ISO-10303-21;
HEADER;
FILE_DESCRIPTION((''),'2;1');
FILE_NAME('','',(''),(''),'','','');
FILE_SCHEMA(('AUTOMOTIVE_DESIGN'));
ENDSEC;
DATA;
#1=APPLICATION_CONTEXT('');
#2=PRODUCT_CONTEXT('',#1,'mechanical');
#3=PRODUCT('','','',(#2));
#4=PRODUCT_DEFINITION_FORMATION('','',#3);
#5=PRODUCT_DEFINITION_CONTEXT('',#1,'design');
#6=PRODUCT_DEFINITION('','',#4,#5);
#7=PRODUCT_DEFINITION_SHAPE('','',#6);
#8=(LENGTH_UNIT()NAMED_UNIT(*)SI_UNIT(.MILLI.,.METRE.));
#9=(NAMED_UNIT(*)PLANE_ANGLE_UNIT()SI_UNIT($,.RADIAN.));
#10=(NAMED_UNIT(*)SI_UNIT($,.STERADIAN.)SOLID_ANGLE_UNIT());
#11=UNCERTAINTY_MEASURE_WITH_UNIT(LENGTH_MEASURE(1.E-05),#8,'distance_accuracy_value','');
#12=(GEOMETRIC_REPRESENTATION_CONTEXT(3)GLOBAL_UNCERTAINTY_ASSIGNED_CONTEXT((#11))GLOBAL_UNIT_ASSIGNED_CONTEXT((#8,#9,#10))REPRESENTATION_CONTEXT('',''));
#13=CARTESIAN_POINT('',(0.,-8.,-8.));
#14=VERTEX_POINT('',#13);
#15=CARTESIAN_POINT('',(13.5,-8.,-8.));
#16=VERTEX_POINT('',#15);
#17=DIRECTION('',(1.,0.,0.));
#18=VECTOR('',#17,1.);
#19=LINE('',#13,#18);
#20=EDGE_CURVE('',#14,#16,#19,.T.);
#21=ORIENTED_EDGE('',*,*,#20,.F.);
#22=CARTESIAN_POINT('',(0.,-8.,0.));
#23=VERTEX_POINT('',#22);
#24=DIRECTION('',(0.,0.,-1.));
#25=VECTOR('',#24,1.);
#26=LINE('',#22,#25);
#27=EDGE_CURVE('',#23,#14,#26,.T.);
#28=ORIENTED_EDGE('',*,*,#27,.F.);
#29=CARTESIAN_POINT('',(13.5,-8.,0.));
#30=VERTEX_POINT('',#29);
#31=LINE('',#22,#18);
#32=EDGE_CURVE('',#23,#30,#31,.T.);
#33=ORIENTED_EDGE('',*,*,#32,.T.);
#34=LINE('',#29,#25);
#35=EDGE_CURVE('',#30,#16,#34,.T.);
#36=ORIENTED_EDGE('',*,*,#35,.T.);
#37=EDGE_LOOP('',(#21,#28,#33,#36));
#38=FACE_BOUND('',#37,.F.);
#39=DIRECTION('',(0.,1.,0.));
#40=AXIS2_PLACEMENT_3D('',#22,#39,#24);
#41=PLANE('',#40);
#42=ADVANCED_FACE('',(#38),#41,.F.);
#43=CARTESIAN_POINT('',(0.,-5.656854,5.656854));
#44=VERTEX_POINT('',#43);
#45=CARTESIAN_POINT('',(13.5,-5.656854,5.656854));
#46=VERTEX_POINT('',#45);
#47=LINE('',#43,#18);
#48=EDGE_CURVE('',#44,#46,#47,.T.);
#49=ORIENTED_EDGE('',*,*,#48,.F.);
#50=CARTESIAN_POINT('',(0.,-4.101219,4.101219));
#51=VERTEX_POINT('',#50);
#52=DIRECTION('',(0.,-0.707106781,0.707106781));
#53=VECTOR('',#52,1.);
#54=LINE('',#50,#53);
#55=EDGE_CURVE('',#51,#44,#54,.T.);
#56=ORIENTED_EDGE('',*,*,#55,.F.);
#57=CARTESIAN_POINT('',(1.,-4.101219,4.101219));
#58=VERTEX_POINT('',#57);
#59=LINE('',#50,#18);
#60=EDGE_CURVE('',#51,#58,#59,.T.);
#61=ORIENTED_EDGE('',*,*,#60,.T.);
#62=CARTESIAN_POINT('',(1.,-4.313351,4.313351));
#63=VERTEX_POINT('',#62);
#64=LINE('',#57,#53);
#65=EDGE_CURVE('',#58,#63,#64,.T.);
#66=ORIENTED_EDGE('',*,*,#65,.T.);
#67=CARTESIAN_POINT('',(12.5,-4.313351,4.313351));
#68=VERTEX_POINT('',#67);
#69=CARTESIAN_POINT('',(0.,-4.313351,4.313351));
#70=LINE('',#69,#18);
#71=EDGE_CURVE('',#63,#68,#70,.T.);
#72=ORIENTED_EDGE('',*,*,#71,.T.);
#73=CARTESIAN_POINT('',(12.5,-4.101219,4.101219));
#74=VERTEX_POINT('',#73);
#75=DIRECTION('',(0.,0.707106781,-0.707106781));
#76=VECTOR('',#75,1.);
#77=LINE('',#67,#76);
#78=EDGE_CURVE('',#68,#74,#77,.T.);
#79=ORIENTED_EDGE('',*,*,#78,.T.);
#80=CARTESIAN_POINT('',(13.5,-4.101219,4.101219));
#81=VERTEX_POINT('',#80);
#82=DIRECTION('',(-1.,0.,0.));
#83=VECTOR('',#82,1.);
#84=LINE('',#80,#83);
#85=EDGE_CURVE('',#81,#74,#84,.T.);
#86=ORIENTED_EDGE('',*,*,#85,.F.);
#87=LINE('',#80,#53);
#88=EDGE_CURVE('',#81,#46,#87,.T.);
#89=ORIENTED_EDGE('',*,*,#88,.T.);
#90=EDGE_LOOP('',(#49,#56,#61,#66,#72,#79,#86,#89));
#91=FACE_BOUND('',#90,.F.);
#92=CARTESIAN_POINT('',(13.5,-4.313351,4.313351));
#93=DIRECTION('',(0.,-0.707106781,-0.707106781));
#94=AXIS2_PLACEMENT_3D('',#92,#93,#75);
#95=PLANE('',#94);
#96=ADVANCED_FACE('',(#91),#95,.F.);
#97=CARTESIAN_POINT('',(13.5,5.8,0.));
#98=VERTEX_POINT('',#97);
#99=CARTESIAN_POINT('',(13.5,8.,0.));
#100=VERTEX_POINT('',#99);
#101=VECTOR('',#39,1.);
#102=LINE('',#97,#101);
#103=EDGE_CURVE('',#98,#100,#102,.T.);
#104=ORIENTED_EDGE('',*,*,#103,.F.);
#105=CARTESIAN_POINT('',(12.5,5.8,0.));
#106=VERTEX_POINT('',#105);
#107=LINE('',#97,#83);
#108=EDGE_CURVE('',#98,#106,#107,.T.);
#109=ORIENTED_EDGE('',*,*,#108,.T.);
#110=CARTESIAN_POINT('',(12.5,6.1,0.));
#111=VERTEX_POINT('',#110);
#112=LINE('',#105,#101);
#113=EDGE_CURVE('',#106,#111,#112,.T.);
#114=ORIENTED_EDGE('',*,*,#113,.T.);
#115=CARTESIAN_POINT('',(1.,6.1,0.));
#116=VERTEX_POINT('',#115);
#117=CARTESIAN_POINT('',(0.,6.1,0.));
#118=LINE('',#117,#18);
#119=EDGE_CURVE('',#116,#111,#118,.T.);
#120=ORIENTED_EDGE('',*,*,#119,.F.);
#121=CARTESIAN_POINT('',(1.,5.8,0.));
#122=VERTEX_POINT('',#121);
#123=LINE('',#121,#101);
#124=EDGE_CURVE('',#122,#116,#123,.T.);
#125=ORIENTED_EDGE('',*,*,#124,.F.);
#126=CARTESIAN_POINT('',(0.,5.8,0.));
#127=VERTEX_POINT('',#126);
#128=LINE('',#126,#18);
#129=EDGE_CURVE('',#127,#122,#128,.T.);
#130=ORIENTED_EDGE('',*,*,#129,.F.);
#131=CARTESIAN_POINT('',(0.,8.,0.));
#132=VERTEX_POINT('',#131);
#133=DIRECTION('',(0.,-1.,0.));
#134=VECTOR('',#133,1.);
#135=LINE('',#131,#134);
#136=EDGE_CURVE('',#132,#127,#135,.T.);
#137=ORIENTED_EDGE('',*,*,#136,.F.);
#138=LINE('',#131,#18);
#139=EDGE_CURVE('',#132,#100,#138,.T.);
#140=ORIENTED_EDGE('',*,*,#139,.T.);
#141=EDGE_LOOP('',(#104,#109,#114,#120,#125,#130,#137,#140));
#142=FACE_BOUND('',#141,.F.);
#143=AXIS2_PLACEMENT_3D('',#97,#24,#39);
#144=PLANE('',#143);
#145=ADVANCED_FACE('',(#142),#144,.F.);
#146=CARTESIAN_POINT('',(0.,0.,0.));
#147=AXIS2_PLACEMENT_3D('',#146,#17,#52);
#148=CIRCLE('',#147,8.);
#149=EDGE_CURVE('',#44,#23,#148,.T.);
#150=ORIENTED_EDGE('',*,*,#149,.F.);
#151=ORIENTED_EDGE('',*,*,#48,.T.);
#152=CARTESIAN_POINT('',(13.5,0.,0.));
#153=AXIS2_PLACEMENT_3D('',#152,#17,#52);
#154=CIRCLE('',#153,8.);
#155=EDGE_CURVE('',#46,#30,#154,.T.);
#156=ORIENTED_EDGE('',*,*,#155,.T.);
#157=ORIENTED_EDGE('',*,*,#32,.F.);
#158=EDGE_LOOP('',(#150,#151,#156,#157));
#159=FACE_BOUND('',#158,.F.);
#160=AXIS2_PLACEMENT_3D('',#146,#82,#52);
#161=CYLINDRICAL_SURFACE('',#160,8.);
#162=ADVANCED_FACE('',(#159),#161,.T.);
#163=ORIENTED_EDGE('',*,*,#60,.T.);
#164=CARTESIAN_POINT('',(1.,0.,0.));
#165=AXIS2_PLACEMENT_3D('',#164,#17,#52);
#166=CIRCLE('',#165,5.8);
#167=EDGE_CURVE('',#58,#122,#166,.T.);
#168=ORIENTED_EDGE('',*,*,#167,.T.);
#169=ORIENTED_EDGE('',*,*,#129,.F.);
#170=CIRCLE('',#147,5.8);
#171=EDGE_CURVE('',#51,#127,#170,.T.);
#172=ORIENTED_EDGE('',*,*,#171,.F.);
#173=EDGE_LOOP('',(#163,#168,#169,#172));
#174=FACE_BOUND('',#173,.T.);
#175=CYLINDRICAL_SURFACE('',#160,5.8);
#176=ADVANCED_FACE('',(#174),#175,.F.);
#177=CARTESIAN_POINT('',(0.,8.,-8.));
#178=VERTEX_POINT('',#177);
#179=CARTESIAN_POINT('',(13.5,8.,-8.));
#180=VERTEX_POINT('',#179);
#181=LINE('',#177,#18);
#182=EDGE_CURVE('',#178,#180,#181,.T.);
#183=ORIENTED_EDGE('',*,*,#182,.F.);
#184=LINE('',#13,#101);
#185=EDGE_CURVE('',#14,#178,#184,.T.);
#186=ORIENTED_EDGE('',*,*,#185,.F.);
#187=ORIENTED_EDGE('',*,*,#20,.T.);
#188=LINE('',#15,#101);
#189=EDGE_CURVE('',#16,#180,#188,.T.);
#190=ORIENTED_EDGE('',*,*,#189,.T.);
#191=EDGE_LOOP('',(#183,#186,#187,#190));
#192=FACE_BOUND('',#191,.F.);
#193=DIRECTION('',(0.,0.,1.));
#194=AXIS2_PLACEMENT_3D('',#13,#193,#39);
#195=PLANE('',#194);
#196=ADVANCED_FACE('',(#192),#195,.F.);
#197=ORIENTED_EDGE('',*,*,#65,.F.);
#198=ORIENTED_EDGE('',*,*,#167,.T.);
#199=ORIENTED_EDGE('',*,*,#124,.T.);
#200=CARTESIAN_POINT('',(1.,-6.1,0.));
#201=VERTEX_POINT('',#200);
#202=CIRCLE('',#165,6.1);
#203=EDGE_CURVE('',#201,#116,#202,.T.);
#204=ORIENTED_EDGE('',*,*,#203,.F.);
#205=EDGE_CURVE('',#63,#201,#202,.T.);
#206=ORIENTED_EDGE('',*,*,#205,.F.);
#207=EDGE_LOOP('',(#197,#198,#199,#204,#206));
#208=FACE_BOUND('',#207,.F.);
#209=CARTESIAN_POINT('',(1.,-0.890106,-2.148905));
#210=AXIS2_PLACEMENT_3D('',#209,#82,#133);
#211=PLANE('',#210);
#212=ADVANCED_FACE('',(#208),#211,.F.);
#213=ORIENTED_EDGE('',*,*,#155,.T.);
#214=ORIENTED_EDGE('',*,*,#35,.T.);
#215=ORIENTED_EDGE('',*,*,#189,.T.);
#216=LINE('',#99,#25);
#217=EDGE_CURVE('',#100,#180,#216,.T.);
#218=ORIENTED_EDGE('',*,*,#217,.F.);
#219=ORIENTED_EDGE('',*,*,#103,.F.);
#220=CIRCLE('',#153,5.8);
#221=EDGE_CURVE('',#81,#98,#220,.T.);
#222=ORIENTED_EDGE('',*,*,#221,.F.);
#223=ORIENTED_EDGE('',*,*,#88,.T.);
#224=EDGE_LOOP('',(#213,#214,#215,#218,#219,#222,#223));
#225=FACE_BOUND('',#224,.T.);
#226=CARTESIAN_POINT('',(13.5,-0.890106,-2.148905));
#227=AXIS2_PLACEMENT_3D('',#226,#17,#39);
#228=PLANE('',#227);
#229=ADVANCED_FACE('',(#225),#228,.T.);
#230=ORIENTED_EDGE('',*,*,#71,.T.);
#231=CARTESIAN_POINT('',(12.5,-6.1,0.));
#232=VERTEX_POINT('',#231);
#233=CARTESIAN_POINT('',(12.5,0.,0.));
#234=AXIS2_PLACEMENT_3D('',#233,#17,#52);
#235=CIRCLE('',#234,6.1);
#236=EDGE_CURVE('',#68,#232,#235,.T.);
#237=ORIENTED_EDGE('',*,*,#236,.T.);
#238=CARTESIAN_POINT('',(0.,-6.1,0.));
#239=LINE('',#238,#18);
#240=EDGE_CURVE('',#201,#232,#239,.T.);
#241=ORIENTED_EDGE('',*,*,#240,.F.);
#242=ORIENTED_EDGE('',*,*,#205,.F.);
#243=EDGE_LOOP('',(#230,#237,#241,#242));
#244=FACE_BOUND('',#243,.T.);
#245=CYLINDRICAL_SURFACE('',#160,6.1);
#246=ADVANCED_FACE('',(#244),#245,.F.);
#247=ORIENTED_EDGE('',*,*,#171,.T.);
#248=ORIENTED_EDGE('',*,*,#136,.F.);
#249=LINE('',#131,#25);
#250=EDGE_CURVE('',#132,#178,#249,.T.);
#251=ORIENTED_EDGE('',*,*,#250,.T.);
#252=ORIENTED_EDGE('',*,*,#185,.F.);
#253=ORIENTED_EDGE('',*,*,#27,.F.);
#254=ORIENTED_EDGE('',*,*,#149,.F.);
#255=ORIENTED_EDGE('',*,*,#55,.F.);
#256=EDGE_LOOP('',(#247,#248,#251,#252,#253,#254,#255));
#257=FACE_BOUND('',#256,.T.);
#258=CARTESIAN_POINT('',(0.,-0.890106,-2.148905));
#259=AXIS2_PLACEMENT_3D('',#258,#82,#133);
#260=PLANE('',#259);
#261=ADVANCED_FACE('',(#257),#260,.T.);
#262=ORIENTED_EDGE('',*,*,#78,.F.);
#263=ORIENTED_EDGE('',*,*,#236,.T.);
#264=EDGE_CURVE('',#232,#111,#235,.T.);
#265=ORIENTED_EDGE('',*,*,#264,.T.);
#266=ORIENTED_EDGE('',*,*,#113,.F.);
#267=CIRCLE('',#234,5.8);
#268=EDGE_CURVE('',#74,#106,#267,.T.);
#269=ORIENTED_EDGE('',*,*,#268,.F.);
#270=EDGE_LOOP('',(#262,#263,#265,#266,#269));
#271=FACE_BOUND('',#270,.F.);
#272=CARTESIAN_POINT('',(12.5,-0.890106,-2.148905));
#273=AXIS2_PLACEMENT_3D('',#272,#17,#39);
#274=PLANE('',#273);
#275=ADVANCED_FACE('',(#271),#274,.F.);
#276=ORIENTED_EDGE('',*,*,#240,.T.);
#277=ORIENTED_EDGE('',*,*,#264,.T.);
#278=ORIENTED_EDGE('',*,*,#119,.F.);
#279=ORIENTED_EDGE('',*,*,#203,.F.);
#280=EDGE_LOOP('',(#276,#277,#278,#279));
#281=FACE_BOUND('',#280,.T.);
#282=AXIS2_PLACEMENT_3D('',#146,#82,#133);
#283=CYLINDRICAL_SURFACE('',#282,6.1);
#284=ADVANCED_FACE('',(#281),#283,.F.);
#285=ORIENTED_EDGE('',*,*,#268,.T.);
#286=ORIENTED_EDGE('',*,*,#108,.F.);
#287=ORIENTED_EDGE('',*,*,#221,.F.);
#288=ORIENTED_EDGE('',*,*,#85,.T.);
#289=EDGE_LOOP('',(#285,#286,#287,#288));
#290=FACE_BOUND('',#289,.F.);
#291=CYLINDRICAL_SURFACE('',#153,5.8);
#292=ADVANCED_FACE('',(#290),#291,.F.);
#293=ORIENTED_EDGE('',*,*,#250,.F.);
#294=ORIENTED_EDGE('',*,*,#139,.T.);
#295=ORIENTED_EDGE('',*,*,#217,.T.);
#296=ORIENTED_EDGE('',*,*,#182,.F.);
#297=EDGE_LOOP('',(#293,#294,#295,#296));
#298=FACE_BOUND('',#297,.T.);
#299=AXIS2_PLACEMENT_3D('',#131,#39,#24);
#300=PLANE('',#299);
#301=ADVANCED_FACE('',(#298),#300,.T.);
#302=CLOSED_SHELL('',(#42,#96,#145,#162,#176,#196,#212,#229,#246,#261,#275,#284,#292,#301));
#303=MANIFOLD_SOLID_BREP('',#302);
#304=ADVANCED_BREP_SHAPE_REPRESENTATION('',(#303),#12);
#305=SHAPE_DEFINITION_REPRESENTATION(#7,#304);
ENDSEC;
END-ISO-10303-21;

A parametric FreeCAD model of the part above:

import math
import FreeCAD as App
import Part
import Sketcher
from FreeCAD import Vector
Q = App.Units.Quantity

doc = App.newDocument("Part")
body = doc.addObject("PartDesign::Body", "Body")

# Sketch on YZ plane
sketch1 = body.newObject("Sketcher::SketchObject", "Sketch")
sketch1.AttachmentSupport = (doc.getObject("YZ_Plane"), [""])
sketch1.MapMode = "FlatFace"
sketch1.addGeometry([
    Part.LineSegment(Vector(-8, 0, 0), Vector(-8, -8, 0)),  # 0
    Part.LineSegment(Vector(-8, -8, 0), Vector(8, -8, 0)),  # 1
    Part.LineSegment(Vector(8, -8, 0), Vector(8, 0, 0)),  # 2
    Part.LineSegment(Vector(8, 0, 0), Vector(6.1, 0, 0)),  # 3
    Part.ArcOfCircle(Part.Circle(Vector(0, 0, 0), Vector(0, 0, 1), 6.1), math.radians(180), math.radians(360)),  # 4
    Part.ArcOfCircle(Part.Circle(Vector(0, 0, 0), Vector(0, 0, 1), 6.1), math.radians(135), math.radians(180)),  # 5
    Part.LineSegment(Vector(-4.3, 4.3, 0), Vector(-5.7, 5.7, 0)),  # 6
    Part.ArcOfCircle(Part.Circle(Vector(0, 0, 0), Vector(0, 0, 1), 8), math.radians(135), math.radians(180)),  # 7
], False)
sketch1.addConstraint([
    Sketcher.Constraint("Coincident", 0, 2, 1, 1),
    Sketcher.Constraint("Coincident", 1, 2, 2, 1),
    Sketcher.Constraint("Coincident", 2, 2, 3, 1),
    Sketcher.Constraint("Coincident", 3, 2, 4, 2),
    Sketcher.Constraint("Tangent", 4, 1, 5, 2),
    Sketcher.Constraint("Coincident", 5, 1, 6, 1),
    Sketcher.Constraint("Coincident", 6, 2, 7, 1),
    Sketcher.Constraint("Tangent", 7, 2, 0, 1),
    Sketcher.Constraint("Vertical", 0),
    Sketcher.Constraint("Horizontal", 1),
    Sketcher.Constraint("Vertical", 2),
    Sketcher.Constraint("Horizontal", 3),
    Sketcher.Constraint("Coincident", 4, 3, -1, 1),
    Sketcher.Constraint("Coincident", 7, 3, -1, 1),
    Sketcher.Constraint("Equal", 4, 5),
    Sketcher.Constraint("Symmetric", 2, 2, 7, 2, -1, 1),
    Sketcher.Constraint("PointOnObject", 4, 1, -1),
    Sketcher.Constraint("Radius", 7, Q("8 mm")),
    Sketcher.Constraint("Radius", 4, Q("6.1 mm")),
    Sketcher.Constraint("DistanceY", 0, 2, 0, 1, Q("8 mm")),
    Sketcher.Constraint("Angle", 6, Q("135 deg")),
    Sketcher.Constraint("DistanceX", 5, 1, -1, 1, Q("4.313351 mm")),
])
pad1 = body.newObject("PartDesign::Pad", "Pad")
pad1.Profile = sketch1
pad1.Length = 13.5

# Sketch on YZ plane
sketch2 = body.newObject("Sketcher::SketchObject", "Sketch001")
sketch2.AttachmentSupport = (doc.getObject("YZ_Plane"), [""])
sketch2.MapMode = "FlatFace"
sketch2.addGeometry([
    Part.ArcOfCircle(Part.Circle(Vector(0, 0, 0), Vector(0, 0, 1), 5.8), math.radians(135), math.radians(360)),
    Part.LineSegment(Vector(-4.1, 4.1, 0), Vector(-4.31, 4.31, 0)),
    Part.ArcOfCircle(Part.Circle(Vector(0, 0, 0), Vector(0, 0, 1), 6.1), math.radians(135), math.radians(360)),
    Part.LineSegment(Vector(6.1, 0, 0), Vector(5.8, 0, 0)),
], False)
sketch2.addConstraint([
    Sketcher.Constraint("Coincident", 0, 1, 1, 1),
    Sketcher.Constraint("Coincident", 1, 2, 2, 1),
    Sketcher.Constraint("Coincident", 2, 2, 3, 1),
    Sketcher.Constraint("Coincident", 3, 2, 0, 2),
    Sketcher.Constraint("Horizontal", 3),
    Sketcher.Constraint("Coincident", 0, 3, -1, 1),
    Sketcher.Constraint("Coincident", 2, 3, -1, 1),
    Sketcher.Constraint("PointOnObject", 2, 2, -1),
    Sketcher.Constraint("Radius", 0, Q("5.8 mm")),
    Sketcher.Constraint("Radius", 2, Q("6.1 mm")),
    Sketcher.Constraint("Angle", 1, Q("135 deg")),
    Sketcher.Constraint("DistanceX", 0, 1, -1, 1, Q("4.101219 mm")),
])
pad2 = body.newObject("PartDesign::Pad", "Pad001")
pad2.Profile = sketch2
pad2.Length = 1

# Sketch on YZ plane
sketch3 = body.newObject("Sketcher::SketchObject", "Sketch002")
sketch3.AttachmentSupport = (doc.getObject("YZ_Plane"), [""])
sketch3.MapMode = "FlatFace"
sketch3.AttachmentOffset = App.Placement(Vector(0, 0, 13.5), App.Rotation())
sketch3.addGeometry([
    Part.ArcOfCircle(Part.Circle(Vector(0, 0, 0), Vector(0, 0, 1), 6.1), math.radians(135), math.radians(360)),
    Part.LineSegment(Vector(6.1, 0, 0), Vector(5.8, 0, 0)),
    Part.ArcOfCircle(Part.Circle(Vector(0, 0, 0), Vector(0, 0, 1), 5.8), math.radians(135), math.radians(360)),
    Part.LineSegment(Vector(-4.1, 4.1, 0), Vector(-4.31, 4.31, 0)),
], False)
sketch3.addConstraint([
    Sketcher.Constraint("Coincident", 0, 2, 1, 1),
    Sketcher.Constraint("Coincident", 1, 2, 2, 2),
    Sketcher.Constraint("Coincident", 2, 1, 3, 1),
    Sketcher.Constraint("Coincident", 3, 2, 0, 1),
    Sketcher.Constraint("Horizontal", 1),
    Sketcher.Constraint("Coincident", 0, 3, -1, 1),
    Sketcher.Constraint("Coincident", 2, 3, -1, 1),
    Sketcher.Constraint("PointOnObject", 0, 2, -1),
    Sketcher.Constraint("Radius", 0, Q("6.1 mm")),
    Sketcher.Constraint("Radius", 2, Q("5.8 mm")),
    Sketcher.Constraint("Angle", 3, Q("135 deg")),
    Sketcher.Constraint("DistanceX", 2, 1, -1, 1, Q("4.101219 mm")),
])
pad3 = body.newObject("PartDesign::Pad", "Pad002")
pad3.Profile = sketch3
pad3.Length = 1
pad3.Reversed = True

doc.recompute()
